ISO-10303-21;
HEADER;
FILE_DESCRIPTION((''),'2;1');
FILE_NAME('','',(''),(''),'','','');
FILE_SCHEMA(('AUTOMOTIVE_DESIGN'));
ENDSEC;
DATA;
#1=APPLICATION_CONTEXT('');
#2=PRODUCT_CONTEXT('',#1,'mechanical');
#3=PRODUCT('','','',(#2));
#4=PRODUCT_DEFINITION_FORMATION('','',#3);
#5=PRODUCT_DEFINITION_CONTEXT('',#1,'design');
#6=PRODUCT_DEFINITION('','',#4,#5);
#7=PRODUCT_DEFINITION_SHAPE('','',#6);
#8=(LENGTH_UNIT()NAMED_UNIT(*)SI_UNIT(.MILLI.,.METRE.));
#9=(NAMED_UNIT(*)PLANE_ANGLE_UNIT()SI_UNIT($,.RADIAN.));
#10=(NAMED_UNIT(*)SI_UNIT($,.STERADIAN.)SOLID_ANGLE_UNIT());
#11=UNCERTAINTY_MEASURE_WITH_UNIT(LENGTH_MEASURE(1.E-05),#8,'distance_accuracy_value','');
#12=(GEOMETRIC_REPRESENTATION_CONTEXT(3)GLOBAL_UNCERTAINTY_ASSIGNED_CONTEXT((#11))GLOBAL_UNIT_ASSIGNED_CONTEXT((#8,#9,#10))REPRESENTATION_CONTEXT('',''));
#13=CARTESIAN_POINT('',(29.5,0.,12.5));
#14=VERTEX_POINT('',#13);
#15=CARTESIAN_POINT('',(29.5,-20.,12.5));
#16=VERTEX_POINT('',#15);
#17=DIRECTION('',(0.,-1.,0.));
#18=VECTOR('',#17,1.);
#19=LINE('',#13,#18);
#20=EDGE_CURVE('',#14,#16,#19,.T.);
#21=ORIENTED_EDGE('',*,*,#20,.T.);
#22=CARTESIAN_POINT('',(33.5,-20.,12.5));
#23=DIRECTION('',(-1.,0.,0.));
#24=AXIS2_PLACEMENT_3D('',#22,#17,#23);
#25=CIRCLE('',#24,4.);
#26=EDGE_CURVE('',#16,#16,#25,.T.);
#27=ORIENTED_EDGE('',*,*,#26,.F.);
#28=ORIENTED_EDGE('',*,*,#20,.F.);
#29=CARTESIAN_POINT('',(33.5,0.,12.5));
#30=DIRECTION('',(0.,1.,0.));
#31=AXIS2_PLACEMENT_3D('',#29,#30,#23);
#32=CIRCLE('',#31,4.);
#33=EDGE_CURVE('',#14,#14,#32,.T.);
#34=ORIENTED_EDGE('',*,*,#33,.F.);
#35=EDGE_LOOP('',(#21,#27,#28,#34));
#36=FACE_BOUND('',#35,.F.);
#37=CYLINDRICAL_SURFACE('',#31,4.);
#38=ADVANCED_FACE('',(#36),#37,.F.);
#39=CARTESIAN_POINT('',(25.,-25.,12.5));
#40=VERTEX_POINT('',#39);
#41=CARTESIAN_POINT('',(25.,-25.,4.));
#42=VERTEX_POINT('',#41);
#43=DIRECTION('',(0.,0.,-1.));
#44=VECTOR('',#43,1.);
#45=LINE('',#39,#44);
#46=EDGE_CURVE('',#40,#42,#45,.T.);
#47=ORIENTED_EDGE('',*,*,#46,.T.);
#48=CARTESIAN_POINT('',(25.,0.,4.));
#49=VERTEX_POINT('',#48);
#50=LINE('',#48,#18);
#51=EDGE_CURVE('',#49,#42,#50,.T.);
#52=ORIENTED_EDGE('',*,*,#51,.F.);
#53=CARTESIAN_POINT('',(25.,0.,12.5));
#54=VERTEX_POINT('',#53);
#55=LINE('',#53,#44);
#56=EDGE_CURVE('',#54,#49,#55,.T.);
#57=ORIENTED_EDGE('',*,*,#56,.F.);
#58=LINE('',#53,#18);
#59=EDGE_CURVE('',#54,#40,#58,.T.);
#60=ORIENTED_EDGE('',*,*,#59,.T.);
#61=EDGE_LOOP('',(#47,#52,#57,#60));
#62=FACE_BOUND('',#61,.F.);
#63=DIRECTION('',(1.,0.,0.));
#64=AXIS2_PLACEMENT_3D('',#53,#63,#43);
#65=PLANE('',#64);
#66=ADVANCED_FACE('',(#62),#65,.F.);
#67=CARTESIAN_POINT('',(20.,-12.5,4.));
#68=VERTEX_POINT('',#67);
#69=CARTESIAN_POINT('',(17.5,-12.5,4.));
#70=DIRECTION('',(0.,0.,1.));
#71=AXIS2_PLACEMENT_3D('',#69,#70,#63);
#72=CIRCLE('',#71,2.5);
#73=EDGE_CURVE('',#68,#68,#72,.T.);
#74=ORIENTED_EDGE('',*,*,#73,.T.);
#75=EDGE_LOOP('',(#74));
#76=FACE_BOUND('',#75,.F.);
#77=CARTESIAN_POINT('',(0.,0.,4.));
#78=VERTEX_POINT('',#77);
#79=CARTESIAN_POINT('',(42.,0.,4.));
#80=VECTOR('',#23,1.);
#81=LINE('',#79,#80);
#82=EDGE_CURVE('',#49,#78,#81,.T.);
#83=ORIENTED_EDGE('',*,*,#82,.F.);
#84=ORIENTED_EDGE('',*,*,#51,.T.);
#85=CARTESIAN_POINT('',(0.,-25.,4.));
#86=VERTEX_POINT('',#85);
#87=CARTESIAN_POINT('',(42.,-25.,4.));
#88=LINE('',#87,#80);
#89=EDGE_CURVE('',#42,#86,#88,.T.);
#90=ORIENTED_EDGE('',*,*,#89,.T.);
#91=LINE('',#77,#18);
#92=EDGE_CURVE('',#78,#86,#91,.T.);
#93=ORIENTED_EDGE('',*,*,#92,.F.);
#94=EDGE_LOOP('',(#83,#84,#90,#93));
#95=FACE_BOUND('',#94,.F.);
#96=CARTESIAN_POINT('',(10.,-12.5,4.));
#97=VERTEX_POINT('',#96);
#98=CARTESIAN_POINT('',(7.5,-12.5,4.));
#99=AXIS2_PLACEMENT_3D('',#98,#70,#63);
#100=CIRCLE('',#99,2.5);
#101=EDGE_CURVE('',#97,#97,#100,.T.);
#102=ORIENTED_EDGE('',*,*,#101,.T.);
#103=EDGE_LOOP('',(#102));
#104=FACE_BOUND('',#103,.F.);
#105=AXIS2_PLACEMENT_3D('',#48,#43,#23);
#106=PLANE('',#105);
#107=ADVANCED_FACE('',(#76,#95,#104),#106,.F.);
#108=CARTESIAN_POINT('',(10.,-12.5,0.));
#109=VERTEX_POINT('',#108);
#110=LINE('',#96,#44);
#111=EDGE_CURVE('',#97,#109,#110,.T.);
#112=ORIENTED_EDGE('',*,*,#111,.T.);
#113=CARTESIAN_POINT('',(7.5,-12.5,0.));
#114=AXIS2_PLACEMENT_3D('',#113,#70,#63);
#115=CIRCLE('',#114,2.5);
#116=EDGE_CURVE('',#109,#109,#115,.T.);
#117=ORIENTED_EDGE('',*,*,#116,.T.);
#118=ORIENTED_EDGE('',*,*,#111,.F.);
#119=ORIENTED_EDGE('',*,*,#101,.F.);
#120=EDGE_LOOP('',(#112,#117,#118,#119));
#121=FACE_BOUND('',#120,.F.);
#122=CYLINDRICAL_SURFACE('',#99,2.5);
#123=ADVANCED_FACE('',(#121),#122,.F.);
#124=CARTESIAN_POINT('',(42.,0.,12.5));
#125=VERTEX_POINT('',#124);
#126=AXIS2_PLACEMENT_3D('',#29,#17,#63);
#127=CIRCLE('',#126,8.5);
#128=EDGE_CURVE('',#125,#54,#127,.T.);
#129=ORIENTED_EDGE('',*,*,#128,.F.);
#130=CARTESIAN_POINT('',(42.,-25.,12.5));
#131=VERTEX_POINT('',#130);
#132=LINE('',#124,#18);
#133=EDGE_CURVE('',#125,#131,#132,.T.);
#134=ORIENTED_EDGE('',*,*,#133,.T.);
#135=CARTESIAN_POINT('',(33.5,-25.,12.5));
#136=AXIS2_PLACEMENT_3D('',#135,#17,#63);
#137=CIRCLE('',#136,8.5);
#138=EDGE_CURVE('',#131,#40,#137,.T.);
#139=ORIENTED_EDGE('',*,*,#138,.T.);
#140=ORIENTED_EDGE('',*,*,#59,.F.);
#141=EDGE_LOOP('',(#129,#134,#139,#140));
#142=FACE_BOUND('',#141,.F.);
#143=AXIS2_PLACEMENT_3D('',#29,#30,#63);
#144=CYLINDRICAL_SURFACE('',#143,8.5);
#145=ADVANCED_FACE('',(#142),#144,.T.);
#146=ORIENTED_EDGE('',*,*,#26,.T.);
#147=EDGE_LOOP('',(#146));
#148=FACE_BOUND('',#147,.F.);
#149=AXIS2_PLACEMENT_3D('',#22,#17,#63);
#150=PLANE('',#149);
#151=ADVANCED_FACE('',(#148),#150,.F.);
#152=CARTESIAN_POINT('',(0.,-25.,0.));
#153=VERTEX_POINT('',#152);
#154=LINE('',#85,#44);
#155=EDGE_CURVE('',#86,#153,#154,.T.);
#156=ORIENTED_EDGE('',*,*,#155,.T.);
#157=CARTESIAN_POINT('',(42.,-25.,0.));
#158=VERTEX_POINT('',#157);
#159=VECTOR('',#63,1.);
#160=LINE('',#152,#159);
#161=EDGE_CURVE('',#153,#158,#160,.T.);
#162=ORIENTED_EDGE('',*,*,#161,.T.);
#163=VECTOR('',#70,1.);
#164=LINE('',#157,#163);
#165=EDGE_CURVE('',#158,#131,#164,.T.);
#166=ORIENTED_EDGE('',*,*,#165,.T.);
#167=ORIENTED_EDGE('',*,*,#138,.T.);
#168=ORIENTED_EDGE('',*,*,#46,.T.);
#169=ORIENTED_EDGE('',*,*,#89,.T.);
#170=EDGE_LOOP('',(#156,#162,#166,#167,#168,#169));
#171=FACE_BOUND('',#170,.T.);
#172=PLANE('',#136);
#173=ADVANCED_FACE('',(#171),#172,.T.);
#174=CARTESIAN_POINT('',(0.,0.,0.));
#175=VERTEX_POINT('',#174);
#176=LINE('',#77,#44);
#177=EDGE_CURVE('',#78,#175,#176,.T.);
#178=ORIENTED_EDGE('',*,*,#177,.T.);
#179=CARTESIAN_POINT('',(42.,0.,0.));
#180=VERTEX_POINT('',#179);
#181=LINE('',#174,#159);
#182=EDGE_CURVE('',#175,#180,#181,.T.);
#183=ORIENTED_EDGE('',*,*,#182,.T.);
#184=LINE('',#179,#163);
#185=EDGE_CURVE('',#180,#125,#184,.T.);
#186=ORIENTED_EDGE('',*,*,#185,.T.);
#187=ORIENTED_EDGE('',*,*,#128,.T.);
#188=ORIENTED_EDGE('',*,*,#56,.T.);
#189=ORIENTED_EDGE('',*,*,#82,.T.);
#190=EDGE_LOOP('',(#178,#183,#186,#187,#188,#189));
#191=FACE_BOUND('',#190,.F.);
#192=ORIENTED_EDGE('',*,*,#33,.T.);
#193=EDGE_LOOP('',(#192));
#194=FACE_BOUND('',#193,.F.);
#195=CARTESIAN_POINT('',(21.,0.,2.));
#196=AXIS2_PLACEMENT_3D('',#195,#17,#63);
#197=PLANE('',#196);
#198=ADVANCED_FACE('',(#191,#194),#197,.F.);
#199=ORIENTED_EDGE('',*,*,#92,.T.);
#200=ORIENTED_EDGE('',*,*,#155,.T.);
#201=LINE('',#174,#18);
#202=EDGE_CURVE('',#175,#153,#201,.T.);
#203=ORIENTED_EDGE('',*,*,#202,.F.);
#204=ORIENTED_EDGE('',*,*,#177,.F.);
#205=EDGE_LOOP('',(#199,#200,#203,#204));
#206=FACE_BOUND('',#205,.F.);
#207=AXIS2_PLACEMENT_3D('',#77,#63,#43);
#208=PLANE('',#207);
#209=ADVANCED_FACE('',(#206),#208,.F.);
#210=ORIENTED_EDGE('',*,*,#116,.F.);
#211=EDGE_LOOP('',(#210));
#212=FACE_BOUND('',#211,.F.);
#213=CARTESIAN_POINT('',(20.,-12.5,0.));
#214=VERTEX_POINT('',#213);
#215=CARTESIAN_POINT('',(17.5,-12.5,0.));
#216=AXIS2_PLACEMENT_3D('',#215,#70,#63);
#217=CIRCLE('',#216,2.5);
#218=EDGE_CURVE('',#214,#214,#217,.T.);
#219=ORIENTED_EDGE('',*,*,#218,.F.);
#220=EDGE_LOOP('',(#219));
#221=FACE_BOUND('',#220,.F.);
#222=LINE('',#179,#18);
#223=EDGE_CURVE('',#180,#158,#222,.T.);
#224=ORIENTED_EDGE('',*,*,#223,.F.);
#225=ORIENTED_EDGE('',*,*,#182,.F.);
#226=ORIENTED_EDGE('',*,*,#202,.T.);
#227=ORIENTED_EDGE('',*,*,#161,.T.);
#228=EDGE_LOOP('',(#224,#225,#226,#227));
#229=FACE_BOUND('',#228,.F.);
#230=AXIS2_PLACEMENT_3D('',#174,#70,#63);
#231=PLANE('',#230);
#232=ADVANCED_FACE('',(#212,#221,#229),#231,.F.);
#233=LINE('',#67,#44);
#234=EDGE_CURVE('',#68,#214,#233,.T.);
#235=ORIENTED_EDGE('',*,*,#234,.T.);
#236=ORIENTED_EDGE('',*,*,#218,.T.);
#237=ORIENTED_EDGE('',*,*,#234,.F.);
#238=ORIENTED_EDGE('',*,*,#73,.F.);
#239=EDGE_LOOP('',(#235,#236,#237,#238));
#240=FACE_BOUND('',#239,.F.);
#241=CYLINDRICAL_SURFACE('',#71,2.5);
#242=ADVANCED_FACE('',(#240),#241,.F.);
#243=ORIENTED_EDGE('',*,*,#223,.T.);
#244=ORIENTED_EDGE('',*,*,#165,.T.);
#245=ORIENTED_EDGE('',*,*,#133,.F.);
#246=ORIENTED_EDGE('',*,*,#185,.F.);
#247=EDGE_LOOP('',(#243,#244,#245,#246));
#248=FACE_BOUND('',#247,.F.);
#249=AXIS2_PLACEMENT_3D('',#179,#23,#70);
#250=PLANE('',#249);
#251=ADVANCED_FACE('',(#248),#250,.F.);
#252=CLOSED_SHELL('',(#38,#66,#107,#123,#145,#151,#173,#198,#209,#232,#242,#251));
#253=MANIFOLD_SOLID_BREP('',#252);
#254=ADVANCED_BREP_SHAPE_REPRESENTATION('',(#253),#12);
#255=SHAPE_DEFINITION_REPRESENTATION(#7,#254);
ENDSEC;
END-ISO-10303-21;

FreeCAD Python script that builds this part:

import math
import FreeCAD as App
import Part
import Sketcher
from FreeCAD import Vector

doc = App.newDocument("Part")
body = doc.addObject("PartDesign::Body", "Body")

# Sketch on XZ plane
sketch1 = body.newObject("Sketcher::SketchObject", "Sketch")
sketch1.AttachmentSupport = (doc.getObject("XZ_Plane"), [""])
sketch1.MapMode = "FlatFace"
sketch1.addGeometry([
    Part.LineSegment(Vector(0, 4, 0), Vector(0, 0, 0)),  # 0
    Part.LineSegment(Vector(0, 0, 0), Vector(42, 0, 0)),  # 1
    Part.LineSegment(Vector(42, 0, 0), Vector(42, 12.5, 0)),  # 2
    Part.ArcOfCircle(Part.Circle(Vector(33.5, 12.5, 0), Vector(0, 0, 1), 8.5), math.radians(0), math.radians(180)),  # 3
    Part.LineSegment(Vector(25, 12.5, 0), Vector(25, 4, 0)),  # 4
    Part.LineSegment(Vector(25, 4, 0), Vector(0, 4, 0)),  # 5
    Part.Circle(Vector(33.5, 12.5, 0), Vector(0, 0, 1), 4),  # 6
], False)
sketch1.addConstraint([
    Sketcher.Constraint("Coincident", 0, 2, 1, 1),
    Sketcher.Constraint("Coincident", 1, 2, 2, 1),
    Sketcher.Constraint("Tangent", 2, 2, 3, 1),
    Sketcher.Constraint("Tangent", 3, 2, 4, 1),
    Sketcher.Constraint("Coincident", 4, 2, 5, 1),
    Sketcher.Constraint("Coincident", 5, 2, 0, 1),
    Sketcher.Constraint("Vertical", 0),
    Sketcher.Constraint("Horizontal", 1),
    Sketcher.Constraint("Vertical", 2),
    Sketcher.Constraint("Vertical", 4),
    Sketcher.Constraint("Horizontal", 5),
    Sketcher.Constraint("Coincident", 0, 2, -1, 1),
    Sketcher.Constraint("Coincident", 6, 3, 3, 3),
    Sketcher.Constraint("Diameter", 6, 8.0),
    Sketcher.Constraint("Radius", 3, 8.5),
    Sketcher.Constraint("DistanceX", 1, 1, 1, 2, 42.0),
    Sketcher.Constraint("DistanceY", 0, 2, 0, 1, 4.0),
    Sketcher.Constraint("DistanceY", 2, 1, 2, 2, 12.5),
])
pad1 = body.newObject("PartDesign::Pad", "Pad")
pad1.Profile = sketch1
pad1.Length = 25

# Sketch on XY plane
sketch2 = body.newObject("Sketcher::SketchObject", "Sketch001")
sketch2.AttachmentSupport = (doc.getObject("XY_Plane"), [""])
sketch2.MapMode = "FlatFace"
sketch2.AttachmentOffset = App.Placement(Vector(0, 0, 4), App.Rotation())
sketch2.addGeometry([
    Part.Circle(Vector(7.5, -12.5, 0), Vector(0, 0, 1), 2.5),
    Part.Circle(Vector(17.5, -12.5, 0), Vector(0, 0, 1), 2.5),
], False)
sketch2.addConstraint([
    Sketcher.Constraint("Equal", 0, 1),
    Sketcher.Constraint("Horizontal", 0, 3, 1, 3),
    Sketcher.Constraint("Diameter", 0, 5.0),
    Sketcher.Constraint("DistanceX", 0, 3, 1, 3, 10.0),
    Sketcher.Constraint("DistanceX", -1, 1, 0, 3, 7.5),
    Sketcher.Constraint("DistanceY", 0, 3, -1, 1, 12.5),
])
pocket1 = body.newObject("PartDesign::Pocket", "Pocket")
pocket1.Profile = sketch2
pocket1.Length = 25

# Sketch on XZ plane
sketch3 = body.newObject("Sketcher::SketchObject", "Sketch002")
sketch3.AttachmentSupport = (doc.getObject("XZ_Plane"), [""])
sketch3.MapMode = "FlatFace"
sketch3.AttachmentOffset = App.Placement(Vector(0, 0, 25), App.Rotation())
sketch3.addGeometry(Part.Circle(Vector(33.5, 12.5, 0), Vector(0, 0, 1), 4), False)
sketch3.addConstraint([
    Sketcher.Constraint("Diameter", 0, 8.0),
    Sketcher.Constraint("DistanceX", -1, 1, 0, 3, 33.5),
    Sketcher.Constraint("DistanceY", -1, 1, 0, 3, 12.5),
])
pad2 = body.newObject("PartDesign::Pad", "Pad001")
pad2.Profile = sketch3
pad2.Length = 5
pad2.Reversed = True

doc.recompute()
